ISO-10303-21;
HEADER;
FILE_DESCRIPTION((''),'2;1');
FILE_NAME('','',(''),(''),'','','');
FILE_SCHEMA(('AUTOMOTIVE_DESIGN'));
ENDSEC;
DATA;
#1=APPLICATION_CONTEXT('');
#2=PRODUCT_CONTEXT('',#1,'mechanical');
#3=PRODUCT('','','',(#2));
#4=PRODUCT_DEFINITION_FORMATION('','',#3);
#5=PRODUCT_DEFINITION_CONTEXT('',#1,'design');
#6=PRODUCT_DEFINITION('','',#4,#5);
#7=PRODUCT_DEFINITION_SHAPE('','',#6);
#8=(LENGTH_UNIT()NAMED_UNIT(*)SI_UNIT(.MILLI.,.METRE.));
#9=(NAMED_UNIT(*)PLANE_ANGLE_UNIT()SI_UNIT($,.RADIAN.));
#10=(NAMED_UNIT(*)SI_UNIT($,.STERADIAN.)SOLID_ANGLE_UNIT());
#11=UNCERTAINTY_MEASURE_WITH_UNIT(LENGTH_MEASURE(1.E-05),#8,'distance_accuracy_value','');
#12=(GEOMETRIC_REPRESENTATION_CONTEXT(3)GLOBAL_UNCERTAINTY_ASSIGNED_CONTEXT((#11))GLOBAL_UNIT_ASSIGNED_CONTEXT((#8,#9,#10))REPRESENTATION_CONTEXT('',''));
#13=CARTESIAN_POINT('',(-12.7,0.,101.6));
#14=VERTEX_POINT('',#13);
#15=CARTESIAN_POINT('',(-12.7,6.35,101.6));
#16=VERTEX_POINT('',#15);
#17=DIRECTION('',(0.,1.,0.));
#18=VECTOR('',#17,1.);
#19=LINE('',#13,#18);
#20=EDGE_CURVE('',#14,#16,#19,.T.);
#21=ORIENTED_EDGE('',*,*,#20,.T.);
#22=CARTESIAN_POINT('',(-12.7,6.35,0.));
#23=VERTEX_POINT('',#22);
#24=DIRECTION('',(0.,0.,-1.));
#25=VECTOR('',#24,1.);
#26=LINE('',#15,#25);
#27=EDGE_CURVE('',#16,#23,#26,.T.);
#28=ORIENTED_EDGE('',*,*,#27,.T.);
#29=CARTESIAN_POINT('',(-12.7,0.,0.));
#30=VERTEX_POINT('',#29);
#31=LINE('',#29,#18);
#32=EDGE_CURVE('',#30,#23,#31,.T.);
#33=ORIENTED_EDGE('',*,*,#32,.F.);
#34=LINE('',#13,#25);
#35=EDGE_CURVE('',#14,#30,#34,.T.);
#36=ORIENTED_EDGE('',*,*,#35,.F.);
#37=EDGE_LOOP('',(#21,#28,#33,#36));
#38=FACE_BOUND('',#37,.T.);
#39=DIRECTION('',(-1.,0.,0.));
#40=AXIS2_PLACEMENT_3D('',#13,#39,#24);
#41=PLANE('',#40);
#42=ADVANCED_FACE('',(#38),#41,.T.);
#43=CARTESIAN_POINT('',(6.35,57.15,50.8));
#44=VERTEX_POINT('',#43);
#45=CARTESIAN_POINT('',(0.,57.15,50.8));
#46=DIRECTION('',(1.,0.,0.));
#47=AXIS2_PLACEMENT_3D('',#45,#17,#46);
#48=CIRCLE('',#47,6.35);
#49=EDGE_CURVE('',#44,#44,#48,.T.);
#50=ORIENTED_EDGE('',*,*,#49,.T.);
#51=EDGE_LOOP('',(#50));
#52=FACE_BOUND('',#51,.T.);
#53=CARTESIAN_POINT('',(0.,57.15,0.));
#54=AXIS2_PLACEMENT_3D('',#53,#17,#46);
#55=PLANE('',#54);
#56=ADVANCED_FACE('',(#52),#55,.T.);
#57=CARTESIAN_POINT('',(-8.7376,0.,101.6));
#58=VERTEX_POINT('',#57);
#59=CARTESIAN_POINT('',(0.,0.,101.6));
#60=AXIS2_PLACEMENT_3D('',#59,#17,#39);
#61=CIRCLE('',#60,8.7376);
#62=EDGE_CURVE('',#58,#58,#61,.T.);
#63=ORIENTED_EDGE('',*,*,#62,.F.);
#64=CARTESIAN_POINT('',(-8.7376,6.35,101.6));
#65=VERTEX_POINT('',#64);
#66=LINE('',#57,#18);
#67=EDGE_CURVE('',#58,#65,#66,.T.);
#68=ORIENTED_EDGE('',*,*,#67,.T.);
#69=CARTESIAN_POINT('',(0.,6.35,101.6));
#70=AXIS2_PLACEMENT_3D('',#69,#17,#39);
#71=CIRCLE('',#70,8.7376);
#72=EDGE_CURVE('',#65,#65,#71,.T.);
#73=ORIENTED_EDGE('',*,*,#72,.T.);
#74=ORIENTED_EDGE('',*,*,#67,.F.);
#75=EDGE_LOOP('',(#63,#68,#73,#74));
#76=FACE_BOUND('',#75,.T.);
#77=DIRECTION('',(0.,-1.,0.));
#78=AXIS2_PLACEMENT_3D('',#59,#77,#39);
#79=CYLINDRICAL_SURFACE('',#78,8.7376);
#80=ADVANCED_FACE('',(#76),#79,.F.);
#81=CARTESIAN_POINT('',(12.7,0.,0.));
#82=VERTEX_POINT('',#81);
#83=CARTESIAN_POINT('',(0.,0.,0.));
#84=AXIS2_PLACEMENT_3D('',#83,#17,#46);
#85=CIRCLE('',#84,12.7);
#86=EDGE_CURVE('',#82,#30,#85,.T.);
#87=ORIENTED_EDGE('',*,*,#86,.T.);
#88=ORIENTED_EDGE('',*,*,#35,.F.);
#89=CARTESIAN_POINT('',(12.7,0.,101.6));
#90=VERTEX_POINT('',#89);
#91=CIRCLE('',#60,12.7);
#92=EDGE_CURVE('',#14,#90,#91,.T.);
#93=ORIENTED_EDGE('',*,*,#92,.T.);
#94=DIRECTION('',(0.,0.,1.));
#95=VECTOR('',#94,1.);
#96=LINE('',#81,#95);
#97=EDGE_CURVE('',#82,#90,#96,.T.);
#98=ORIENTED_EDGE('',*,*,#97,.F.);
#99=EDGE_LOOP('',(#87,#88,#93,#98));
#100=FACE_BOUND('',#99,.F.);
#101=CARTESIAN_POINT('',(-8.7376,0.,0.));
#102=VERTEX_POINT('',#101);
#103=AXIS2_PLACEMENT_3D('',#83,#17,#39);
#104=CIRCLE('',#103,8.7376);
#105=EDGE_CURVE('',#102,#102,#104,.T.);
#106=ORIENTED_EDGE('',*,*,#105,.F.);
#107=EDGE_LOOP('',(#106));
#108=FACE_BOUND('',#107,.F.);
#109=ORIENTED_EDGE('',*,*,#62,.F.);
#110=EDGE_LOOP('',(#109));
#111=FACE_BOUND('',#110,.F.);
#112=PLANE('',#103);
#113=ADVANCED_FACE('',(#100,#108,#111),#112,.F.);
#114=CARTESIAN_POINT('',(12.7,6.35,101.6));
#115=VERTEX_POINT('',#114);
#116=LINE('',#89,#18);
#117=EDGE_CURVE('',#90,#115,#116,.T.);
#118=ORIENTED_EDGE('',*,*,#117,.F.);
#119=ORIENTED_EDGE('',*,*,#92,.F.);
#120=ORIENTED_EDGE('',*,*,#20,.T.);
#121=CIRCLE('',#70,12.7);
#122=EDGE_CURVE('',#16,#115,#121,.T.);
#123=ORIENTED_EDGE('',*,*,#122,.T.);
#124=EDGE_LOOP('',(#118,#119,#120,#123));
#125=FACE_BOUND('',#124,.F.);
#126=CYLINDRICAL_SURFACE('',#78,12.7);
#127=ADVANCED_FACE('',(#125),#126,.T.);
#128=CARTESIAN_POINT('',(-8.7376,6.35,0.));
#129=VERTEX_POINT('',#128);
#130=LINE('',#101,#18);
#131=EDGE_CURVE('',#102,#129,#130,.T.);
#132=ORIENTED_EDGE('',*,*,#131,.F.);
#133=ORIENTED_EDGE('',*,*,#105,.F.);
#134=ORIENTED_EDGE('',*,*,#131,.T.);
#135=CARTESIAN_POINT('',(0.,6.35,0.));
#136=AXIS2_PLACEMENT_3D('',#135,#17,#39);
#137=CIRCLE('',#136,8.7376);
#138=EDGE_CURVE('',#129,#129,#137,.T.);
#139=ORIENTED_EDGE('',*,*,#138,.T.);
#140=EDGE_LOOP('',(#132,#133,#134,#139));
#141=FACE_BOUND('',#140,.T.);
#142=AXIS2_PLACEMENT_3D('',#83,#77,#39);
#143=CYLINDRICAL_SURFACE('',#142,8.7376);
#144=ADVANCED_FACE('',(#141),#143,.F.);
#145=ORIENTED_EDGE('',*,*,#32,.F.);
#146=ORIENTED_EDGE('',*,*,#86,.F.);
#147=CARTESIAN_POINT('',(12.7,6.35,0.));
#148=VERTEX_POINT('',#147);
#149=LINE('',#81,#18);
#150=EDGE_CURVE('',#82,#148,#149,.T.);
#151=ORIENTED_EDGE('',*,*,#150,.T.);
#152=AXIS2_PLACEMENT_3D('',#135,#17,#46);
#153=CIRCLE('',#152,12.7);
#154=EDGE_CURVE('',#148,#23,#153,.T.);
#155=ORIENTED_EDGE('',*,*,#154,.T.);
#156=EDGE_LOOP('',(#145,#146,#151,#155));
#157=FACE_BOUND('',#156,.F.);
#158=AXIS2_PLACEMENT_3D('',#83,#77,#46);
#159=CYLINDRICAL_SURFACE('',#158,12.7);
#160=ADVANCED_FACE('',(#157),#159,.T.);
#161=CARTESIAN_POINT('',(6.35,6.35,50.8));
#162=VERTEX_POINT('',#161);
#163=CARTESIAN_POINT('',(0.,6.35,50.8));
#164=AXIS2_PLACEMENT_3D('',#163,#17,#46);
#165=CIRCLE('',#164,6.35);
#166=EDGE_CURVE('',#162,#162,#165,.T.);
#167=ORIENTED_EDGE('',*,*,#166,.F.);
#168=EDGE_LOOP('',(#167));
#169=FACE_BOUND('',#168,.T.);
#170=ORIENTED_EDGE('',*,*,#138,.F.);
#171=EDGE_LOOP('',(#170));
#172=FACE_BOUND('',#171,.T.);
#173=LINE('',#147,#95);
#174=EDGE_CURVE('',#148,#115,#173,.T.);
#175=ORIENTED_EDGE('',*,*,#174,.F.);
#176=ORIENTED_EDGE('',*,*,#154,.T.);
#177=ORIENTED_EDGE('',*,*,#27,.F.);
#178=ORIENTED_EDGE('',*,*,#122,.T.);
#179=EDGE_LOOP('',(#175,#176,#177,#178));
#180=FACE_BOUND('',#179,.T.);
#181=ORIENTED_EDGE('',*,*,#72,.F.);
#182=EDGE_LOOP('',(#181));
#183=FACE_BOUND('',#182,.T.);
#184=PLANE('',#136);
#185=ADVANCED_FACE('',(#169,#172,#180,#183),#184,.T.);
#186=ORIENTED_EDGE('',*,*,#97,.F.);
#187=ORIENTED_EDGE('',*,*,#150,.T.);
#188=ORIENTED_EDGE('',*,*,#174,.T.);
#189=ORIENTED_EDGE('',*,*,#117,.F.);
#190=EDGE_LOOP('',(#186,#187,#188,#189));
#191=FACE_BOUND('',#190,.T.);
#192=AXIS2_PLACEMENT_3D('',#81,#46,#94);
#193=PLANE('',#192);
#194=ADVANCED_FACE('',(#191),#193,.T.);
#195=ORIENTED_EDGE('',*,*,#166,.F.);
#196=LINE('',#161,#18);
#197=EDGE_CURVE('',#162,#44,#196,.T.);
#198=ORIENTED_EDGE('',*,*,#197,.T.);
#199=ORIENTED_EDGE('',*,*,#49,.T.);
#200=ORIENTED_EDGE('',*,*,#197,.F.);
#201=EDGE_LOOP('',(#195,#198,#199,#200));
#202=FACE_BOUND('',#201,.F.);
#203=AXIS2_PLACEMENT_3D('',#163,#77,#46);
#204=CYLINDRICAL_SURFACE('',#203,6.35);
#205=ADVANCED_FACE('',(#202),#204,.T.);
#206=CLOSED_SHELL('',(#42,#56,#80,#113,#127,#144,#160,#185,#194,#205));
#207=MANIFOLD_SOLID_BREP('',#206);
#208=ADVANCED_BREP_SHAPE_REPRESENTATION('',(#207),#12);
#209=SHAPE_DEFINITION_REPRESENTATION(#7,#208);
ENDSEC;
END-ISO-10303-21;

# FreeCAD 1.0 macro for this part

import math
import FreeCAD as App
import Part
import Sketcher

V = App.Vector
Q = App.Units.Quantity

doc = App.newDocument("Part")
body = doc.addObject("PartDesign::Body", "Body")

sketch1 = body.newObject("Sketcher::SketchObject", "Sketch")
sketch1.AttachmentSupport = (doc.getObject("XZ_Plane"), [""])
sketch1.MapMode = "FlatFace"
sketch1.addGeometry(Part.LineSegment(V(13, 102, 0), V(13, 0, 0)), False)
sketch1.addGeometry(Part.ArcOfCircle(Part.Circle(V(0, 0, 0), V(0, 0, 1), 13), math.radians(180), math.radians(360)), False)
sketch1.addGeometry(Part.LineSegment(V(-13, 0, 0), V(-13, 102, 0)), False)
sketch1.addGeometry(Part.ArcOfCircle(Part.Circle(V(0, 102, 0), V(0, 0, 1), 13), math.radians(0), math.radians(180)), False)
sketch1.addGeometry(Part.Circle(V(0, 0, 0), V(0, 0, 1), 9), False)
sketch1.addGeometry(Part.Circle(V(0, 102, 0), V(0, 0, 1), 9), False)
sketch1.addConstraint(Sketcher.Constraint("Tangent", 0, 2, 1, 2))
sketch1.addConstraint(Sketcher.Constraint("Tangent", 1, 1, 2, 1))
sketch1.addConstraint(Sketcher.Constraint("Tangent", 2, 2, 3, 2))
sketch1.addConstraint(Sketcher.Constraint("Tangent", 3, 1, 0, 1))
sketch1.addConstraint(Sketcher.Constraint("Vertical", 0))
sketch1.addConstraint(Sketcher.Constraint("Vertical", 2))
sketch1.addConstraint(Sketcher.Constraint("Coincident", 1, 3, -1, 1))
sketch1.addConstraint(Sketcher.Constraint("Coincident", 4, 3, -1, 1))
sketch1.addConstraint(Sketcher.Constraint("Coincident", 5, 3, 3, 3))
sketch1.addConstraint(Sketcher.Constraint("Equal", 4, 5))
sketch1.addConstraint(Sketcher.Constraint("Radius", 1, Q("0.5 in")))
sketch1.addConstraint(Sketcher.Constraint("DistanceY", 0, 2, 0, 1, Q("4 in")))
sketch1.addConstraint(Sketcher.Constraint("Diameter", 4, Q("0.688 in")))
pad1 = body.newObject("PartDesign::Pad", "Pad")
pad1.Profile = sketch1
pad1.Length = Q("0.25 in")
pad1.Reversed = True

sketch2 = body.newObject("Sketcher::SketchObject", "Sketch001")
sketch2.AttachmentSupport = (doc.getObject("XZ_Plane"), [""])
sketch2.MapMode = "FlatFace"
sketch2.AttachmentOffset = App.Placement(V(0, 0, -0.25 * 25.4), App.Rotation())
sketch2.addGeometry(Part.Circle(V(0, 51, 0), V(0, 0, 1), 6), False)
sketch2.addConstraint(Sketcher.Constraint("PointOnObject", 0, 3, -2))
sketch2.addConstraint(Sketcher.Constraint("Diameter", 0, Q("0.5 in")))
sketch2.addConstraint(Sketcher.Constraint("DistanceY", -1, 1, 0, 3, Q("2 in")))
pad2 = body.newObject("PartDesign::Pad", "Pad001")
pad2.Profile = sketch2
pad2.Length = Q("2 in")
pad2.Reversed = True

doc.recompute()
